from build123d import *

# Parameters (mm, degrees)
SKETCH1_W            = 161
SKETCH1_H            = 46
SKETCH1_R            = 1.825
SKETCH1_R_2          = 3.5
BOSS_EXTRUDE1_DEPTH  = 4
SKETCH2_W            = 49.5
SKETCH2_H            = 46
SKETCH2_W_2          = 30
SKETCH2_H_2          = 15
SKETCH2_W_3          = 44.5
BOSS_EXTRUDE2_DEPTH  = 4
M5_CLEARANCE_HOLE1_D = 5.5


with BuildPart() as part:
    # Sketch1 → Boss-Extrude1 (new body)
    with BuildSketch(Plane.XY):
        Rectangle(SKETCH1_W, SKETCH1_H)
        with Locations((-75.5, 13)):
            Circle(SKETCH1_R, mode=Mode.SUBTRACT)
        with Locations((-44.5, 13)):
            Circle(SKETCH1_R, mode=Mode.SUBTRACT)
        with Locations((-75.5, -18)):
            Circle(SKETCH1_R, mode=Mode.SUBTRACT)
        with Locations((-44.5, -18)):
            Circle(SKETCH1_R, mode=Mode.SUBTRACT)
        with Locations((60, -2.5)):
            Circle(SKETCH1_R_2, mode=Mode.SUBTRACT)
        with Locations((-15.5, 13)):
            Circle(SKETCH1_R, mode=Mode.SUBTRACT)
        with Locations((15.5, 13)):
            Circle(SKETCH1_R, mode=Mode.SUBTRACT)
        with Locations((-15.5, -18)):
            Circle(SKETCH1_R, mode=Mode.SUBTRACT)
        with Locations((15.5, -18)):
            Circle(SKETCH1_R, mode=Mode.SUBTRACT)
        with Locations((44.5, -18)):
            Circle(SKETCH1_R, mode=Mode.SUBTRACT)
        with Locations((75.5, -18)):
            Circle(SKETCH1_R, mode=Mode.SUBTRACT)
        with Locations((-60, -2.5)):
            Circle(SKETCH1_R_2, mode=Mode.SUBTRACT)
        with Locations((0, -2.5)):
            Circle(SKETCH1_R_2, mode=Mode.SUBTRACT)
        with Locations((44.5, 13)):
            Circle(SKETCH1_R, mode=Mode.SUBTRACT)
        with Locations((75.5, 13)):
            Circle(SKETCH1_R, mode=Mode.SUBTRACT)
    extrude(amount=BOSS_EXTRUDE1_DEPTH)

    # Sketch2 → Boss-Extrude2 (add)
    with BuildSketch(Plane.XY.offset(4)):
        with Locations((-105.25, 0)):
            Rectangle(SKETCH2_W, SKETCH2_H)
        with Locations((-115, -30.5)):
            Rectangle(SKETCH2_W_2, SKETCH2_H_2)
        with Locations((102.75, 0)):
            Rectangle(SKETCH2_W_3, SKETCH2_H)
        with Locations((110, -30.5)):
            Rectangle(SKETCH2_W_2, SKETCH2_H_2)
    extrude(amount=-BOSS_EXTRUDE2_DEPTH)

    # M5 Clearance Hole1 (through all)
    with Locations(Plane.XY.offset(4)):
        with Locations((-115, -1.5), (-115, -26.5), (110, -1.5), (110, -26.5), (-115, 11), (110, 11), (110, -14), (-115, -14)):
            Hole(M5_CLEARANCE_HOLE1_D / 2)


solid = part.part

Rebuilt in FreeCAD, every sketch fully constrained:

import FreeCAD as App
import Part
import Sketcher

V = App.Vector
Q = App.Units.Quantity

doc = App.newDocument("Part")
body = doc.addObject("PartDesign::Body", "Body")

sketch1 = doc.addObject("Sketcher::SketchObject", "Sketch")
body.addObject(sketch1)
sketch1.AttachmentSupport = (doc.XY_Plane, [""])
sketch1.MapMode = "FlatFace"
sketch1.addGeometry([
    Part.LineSegment(V(-80.5, 23, 0), V(-80.5, -23, 0)),
    Part.LineSegment(V(-80.5, -23, 0), V(80.5, -23, 0)),
    Part.LineSegment(V(80.5, -23, 0), V(80.5, 23, 0)),
    Part.LineSegment(V(80.5, 23, 0), V(-80.5, 23, 0)),
    Part.Circle(V(-75.5, -18, 0), V(0, 0, 1), 1.8),
    Part.Circle(V(-44.5, -18, 0), V(0, 0, 1), 1.8),
    Part.Circle(V(-15.5, -18, 0), V(0, 0, 1), 1.8),
    Part.Circle(V(15.5, -18, 0), V(0, 0, 1), 1.8),
    Part.Circle(V(44.5, -18, 0), V(0, 0, 1), 1.8),
    Part.Circle(V(75.5, -18, 0), V(0, 0, 1), 1.8),
    Part.Circle(V(-60, -2.5, 0), V(0, 0, 1), 3.5),
    Part.Circle(V(0, -2.5, 0), V(0, 0, 1), 3.5),
    Part.Circle(V(-75.5, 13, 0), V(0, 0, 1), 1.8),
    Part.Circle(V(-44.5, 13, 0), V(0, 0, 1), 1.8),
    Part.Circle(V(-15.5, 13, 0), V(0, 0, 1), 1.8),
    Part.Circle(V(60, -2.5, 0), V(0, 0, 1), 3.5),
    Part.Circle(V(15.5, 13, 0), V(0, 0, 1), 1.8),
    Part.Circle(V(44.5, 13, 0), V(0, 0, 1), 1.8),
    Part.Circle(V(75.5, 13, 0), V(0, 0, 1), 1.8),
], False)
sketch1.addConstraint([
    Sketcher.Constraint("Coincident", 0, 2, 1, 1),
    Sketcher.Constraint("Coincident", 1, 2, 2, 1),
    Sketcher.Constraint("Coincident", 2, 2, 3, 1),
    Sketcher.Constraint("Coincident", 3, 2, 0, 1),
    Sketcher.Constraint("Vertical", 0),
    Sketcher.Constraint("Horizontal", 1),
    Sketcher.Constraint("Vertical", 2),
    Sketcher.Constraint("Horizontal", 3),
    Sketcher.Constraint("Equal", 4, 5),
    Sketcher.Constraint("Equal", 5, 6),
    Sketcher.Constraint("Equal", 6, 7),
    Sketcher.Constraint("Equal", 7, 8),
    Sketcher.Constraint("Equal", 8, 9),
    Sketcher.Constraint("Equal", 10, 11),
    Sketcher.Constraint("Equal", 9, 12),
    Sketcher.Constraint("Equal", 12, 13),
    Sketcher.Constraint("Equal", 13, 14),
    Sketcher.Constraint("Equal", 11, 15),
    Sketcher.Constraint("Equal", 14, 16),
    Sketcher.Constraint("Equal", 16, 17),
    Sketcher.Constraint("Equal", 17, 18),
    Sketcher.Constraint("Symmetric", 0, 2, 2, 2, -1, 1),
    Sketcher.Constraint("Symmetric", 6, 3, 7, 3, -2),
    Sketcher.Constraint("Symmetric", 5, 3, 8, 3, -2),
    Sketcher.Constraint("Symmetric", 4, 3, 9, 3, -2),
    Sketcher.Constraint("Symmetric", 10, 3, 15, 3, -2),
    Sketcher.Constraint("Symmetric", 14, 3, 16, 3, -2),
    Sketcher.Constraint("Symmetric", 13, 3, 17, 3, -2),
    Sketcher.Constraint("Symmetric", 12, 3, 18, 3, -2),
    Sketcher.Constraint("PointOnObject", 11, 3, -2),
    Sketcher.Constraint("Horizontal", 4, 3, 5, 3),
    Sketcher.Constraint("Horizontal", 5, 3, 6, 3),
    Sketcher.Constraint("Horizontal", 10, 3, 11, 3),
    Sketcher.Constraint("Horizontal", 12, 3, 13, 3),
    Sketcher.Constraint("Horizontal", 13, 3, 14, 3),
    Sketcher.Constraint("Vertical", 4, 3, 12, 3),
    Sketcher.Constraint("Vertical", 5, 3, 13, 3),
    Sketcher.Constraint("Vertical", 6, 3, 14, 3),
    Sketcher.Constraint("Diameter", 10, Q("7 mm")),
    Sketcher.Constraint("Diameter", 4, Q("3.65 mm")),
    Sketcher.Constraint("DistanceX", 1, 1, 1, 2, Q("161 mm")),
    Sketcher.Constraint("DistanceY", 0, 2, 0, 1, Q("46 mm")),
    Sketcher.Constraint("DistanceY", 4, 3, -1, 1, Q("18 mm")),
    Sketcher.Constraint("DistanceX", 10, 3, -1, 1, Q("60 mm")),
    Sketcher.Constraint("DistanceY", -1, 1, 12, 3, Q("13 mm")),
    Sketcher.Constraint("DistanceX", 4, 3, 5, 3, Q("31 mm")),
    Sketcher.Constraint("DistanceX", 5, 3, 6, 3, Q("29 mm")),
    Sketcher.Constraint("DistanceX", 6, 3, 7, 3, Q("31 mm")),
    Sketcher.Constraint("DistanceY", 10, 3, -1, 1, Q("2.5 mm")),
])
pad1 = doc.addObject("PartDesign::Pad", "Pad")
body.addObject(pad1)
pad1.Profile = sketch1
pad1.Length = 4

sketch2 = doc.addObject("Sketcher::SketchObject", "Sketch001")
body.addObject(sketch2)
sketch2.AttachmentSupport = (doc.XY_Plane, [""])
sketch2.MapMode = "FlatFace"
sketch2.AttachmentOffset = App.Placement(V(0, 0, 4), App.Rotation())
sketch2.addGeometry([
    Part.LineSegment(V(-130, 23, 0), V(-130, -38, 0)),
    Part.LineSegment(V(-130, -38, 0), V(-100, -38, 0)),
    Part.LineSegment(V(-100, -38, 0), V(-100, -23, 0)),
    Part.LineSegment(V(-100, -23, 0), V(-80, -23, 0)),
    Part.LineSegment(V(-80, -23, 0), V(-80, 23, 0)),
    Part.LineSegment(V(-80, 23, 0), V(-130, 23, 0)),
    Part.LineSegment(V(80, 23, 0), V(80, -23, 0)),
    Part.LineSegment(V(80, -23, 0), V(95, -23, 0)),
    Part.LineSegment(V(95, -23, 0), V(95, -38, 0)),
    Part.LineSegment(V(95, -38, 0), V(125, -38, 0)),
    Part.LineSegment(V(125, -38, 0), V(125, 23, 0)),
    Part.LineSegment(V(125, 23, 0), V(80, 23, 0)),
], False)
sketch2.addConstraint([
    Sketcher.Constraint("Coincident", 0, 2, 1, 1),
    Sketcher.Constraint("Coincident", 1, 2, 2, 1),
    Sketcher.Constraint("Coincident", 2, 2, 3, 1),
    Sketcher.Constraint("Coincident", 3, 2, 4, 1),
    Sketcher.Constraint("Coincident", 4, 2, 5, 1),
    Sketcher.Constraint("Coincident", 5, 2, 0, 1),
    Sketcher.Constraint("Coincident", 6, 2, 7, 1),
    Sketcher.Constraint("Coincident", 7, 2, 8, 1),
    Sketcher.Constraint("Coincident", 8, 2, 9, 1),
    Sketcher.Constraint("Coincident", 9, 2, 10, 1),
    Sketcher.Constraint("Coincident", 10, 2, 11, 1),
    Sketcher.Constraint("Coincident", 11, 2, 6, 1),
    Sketcher.Constraint("Vertical", 0),
    Sketcher.Constraint("Horizontal", 1),
    Sketcher.Constraint("Vertical", 2),
    Sketcher.Constraint("Horizontal", 3),
    Sketcher.Constraint("Vertical", 4),
    Sketcher.Constraint("Horizontal", 5),
    Sketcher.Constraint("Vertical", 6),
    Sketcher.Constraint("Horizontal", 7),
    Sketcher.Constraint("Vertical", 8),
    Sketcher.Constraint("Horizontal", 9),
    Sketcher.Constraint("Vertical", 10),
    Sketcher.Constraint("Horizontal", 11),
    Sketcher.Constraint("Symmetric", 4, 2, 6, 2, -1, 1),
    Sketcher.Constraint("Horizontal", 3, 2, 6, 2),
    Sketcher.Constraint("Horizontal", 1, 2, 8, 2),
    Sketcher.Constraint("Horizontal", 5, 2, 10, 2),
    Sketcher.Constraint("Equal", 1, 9),
    Sketcher.Constraint("DistanceX", 1, 1, 1, 2, Q("30 mm")),
    Sketcher.Constraint("DistanceY", 0, 2, 0, 1, Q("61 mm")),
    Sketcher.Constraint("DistanceY", 2, 1, 2, 2, Q("15 mm")),
    Sketcher.Constraint("DistanceX", 3, 1, 3, 2, Q("19.5 mm")),
    Sketcher.Constraint("DistanceX", 7, 1, 7, 2, Q("14.5 mm")),
    Sketcher.Constraint("DistanceX", 0, 2, -1, 1, Q("130 mm")),
])
pad2 = doc.addObject("PartDesign::Pad", "Pad001")
body.addObject(pad2)
pad2.Profile = sketch2
pad2.Length = 4
pad2.Reversed = True

sketch3 = doc.addObject("Sketcher::SketchObject", "Sketch002")
body.addObject(sketch3)
sketch3.AttachmentSupport = (doc.XY_Plane, [""])
sketch3.MapMode = "FlatFace"
sketch3.AttachmentOffset = App.Placement(V(0, 0, 4), App.Rotation())
sketch3.addGeometry([
    Part.Circle(V(-115, -1.5, 0), V(0, 0, 1), 2.8),
    Part.Circle(V(-115, -26.5, 0), V(0, 0, 1), 2.8),
    Part.Circle(V(110, -1.5, 0), V(0, 0, 1), 2.8),
    Part.Circle(V(110, -26.5, 0), V(0, 0, 1), 2.8),
    Part.Circle(V(-115, 11, 0), V(0, 0, 1), 2.8),
    Part.Circle(V(110, 11, 0), V(0, 0, 1), 2.8),
    Part.Circle(V(110, -14, 0), V(0, 0, 1), 2.8),
    Part.Circle(V(-115, -14, 0), V(0, 0, 1), 2.8),
], False)
sketch3.addConstraint([
    Sketcher.Constraint("Equal", 0, 1),
    Sketcher.Constraint("Equal", 1, 2),
    Sketcher.Constraint("Equal", 2, 3),
    Sketcher.Constraint("Equal", 3, 4),
    Sketcher.Constraint("Equal", 4, 5),
    Sketcher.Constraint("Equal", 5, 6),
    Sketcher.Constraint("Equal", 6, 7),
    Sketcher.Constraint("Horizontal", 0, 3, 2, 3),
    Sketcher.Constraint("Horizontal", 1, 3, 3, 3),
    Sketcher.Constraint("Horizontal", 4, 3, 5, 3),
    Sketcher.Constraint("Horizontal", 6, 3, 7, 3),
    Sketcher.Constraint("Vertical", 0, 3, 1, 3),
    Sketcher.Constraint("Vertical", 2, 3, 3, 3),
    Sketcher.Constraint("Vertical", 1, 3, 4, 3),
    Sketcher.Constraint("Vertical", 3, 3, 5, 3),
    Sketcher.Constraint("Vertical", 5, 3, 6, 3),
    Sketcher.Constraint("Vertical", 4, 3, 7, 3),
    Sketcher.Constraint("Diameter", 0, Q("5.5 mm")),
    Sketcher.Constraint("DistanceX", 0, 3, -1, 1, Q("115 mm")),
    Sketcher.Constraint("DistanceX", -1, 1, 2, 3, Q("110 mm")),
    Sketcher.Constraint("DistanceY", -1, 1, 4, 3, Q("11 mm")),
    Sketcher.Constraint("DistanceY", 6, 3, -1, 1, Q("14 mm")),
    Sketcher.Constraint("DistanceY", 1, 3, 0, 3, Q("25 mm")),
    Sketcher.Constraint("DistanceY", 0, 3, -1, 1, Q("1.5 mm")),
])
doc.recompute()
hole = doc.addObject("PartDesign::Hole", "Hole")
body.addObject(hole)
hole.Profile = sketch3
hole.ThreadType = "None"
hole.Diameter = 5.5
hole.DepthType = "ThroughAll"

doc.recompute()
